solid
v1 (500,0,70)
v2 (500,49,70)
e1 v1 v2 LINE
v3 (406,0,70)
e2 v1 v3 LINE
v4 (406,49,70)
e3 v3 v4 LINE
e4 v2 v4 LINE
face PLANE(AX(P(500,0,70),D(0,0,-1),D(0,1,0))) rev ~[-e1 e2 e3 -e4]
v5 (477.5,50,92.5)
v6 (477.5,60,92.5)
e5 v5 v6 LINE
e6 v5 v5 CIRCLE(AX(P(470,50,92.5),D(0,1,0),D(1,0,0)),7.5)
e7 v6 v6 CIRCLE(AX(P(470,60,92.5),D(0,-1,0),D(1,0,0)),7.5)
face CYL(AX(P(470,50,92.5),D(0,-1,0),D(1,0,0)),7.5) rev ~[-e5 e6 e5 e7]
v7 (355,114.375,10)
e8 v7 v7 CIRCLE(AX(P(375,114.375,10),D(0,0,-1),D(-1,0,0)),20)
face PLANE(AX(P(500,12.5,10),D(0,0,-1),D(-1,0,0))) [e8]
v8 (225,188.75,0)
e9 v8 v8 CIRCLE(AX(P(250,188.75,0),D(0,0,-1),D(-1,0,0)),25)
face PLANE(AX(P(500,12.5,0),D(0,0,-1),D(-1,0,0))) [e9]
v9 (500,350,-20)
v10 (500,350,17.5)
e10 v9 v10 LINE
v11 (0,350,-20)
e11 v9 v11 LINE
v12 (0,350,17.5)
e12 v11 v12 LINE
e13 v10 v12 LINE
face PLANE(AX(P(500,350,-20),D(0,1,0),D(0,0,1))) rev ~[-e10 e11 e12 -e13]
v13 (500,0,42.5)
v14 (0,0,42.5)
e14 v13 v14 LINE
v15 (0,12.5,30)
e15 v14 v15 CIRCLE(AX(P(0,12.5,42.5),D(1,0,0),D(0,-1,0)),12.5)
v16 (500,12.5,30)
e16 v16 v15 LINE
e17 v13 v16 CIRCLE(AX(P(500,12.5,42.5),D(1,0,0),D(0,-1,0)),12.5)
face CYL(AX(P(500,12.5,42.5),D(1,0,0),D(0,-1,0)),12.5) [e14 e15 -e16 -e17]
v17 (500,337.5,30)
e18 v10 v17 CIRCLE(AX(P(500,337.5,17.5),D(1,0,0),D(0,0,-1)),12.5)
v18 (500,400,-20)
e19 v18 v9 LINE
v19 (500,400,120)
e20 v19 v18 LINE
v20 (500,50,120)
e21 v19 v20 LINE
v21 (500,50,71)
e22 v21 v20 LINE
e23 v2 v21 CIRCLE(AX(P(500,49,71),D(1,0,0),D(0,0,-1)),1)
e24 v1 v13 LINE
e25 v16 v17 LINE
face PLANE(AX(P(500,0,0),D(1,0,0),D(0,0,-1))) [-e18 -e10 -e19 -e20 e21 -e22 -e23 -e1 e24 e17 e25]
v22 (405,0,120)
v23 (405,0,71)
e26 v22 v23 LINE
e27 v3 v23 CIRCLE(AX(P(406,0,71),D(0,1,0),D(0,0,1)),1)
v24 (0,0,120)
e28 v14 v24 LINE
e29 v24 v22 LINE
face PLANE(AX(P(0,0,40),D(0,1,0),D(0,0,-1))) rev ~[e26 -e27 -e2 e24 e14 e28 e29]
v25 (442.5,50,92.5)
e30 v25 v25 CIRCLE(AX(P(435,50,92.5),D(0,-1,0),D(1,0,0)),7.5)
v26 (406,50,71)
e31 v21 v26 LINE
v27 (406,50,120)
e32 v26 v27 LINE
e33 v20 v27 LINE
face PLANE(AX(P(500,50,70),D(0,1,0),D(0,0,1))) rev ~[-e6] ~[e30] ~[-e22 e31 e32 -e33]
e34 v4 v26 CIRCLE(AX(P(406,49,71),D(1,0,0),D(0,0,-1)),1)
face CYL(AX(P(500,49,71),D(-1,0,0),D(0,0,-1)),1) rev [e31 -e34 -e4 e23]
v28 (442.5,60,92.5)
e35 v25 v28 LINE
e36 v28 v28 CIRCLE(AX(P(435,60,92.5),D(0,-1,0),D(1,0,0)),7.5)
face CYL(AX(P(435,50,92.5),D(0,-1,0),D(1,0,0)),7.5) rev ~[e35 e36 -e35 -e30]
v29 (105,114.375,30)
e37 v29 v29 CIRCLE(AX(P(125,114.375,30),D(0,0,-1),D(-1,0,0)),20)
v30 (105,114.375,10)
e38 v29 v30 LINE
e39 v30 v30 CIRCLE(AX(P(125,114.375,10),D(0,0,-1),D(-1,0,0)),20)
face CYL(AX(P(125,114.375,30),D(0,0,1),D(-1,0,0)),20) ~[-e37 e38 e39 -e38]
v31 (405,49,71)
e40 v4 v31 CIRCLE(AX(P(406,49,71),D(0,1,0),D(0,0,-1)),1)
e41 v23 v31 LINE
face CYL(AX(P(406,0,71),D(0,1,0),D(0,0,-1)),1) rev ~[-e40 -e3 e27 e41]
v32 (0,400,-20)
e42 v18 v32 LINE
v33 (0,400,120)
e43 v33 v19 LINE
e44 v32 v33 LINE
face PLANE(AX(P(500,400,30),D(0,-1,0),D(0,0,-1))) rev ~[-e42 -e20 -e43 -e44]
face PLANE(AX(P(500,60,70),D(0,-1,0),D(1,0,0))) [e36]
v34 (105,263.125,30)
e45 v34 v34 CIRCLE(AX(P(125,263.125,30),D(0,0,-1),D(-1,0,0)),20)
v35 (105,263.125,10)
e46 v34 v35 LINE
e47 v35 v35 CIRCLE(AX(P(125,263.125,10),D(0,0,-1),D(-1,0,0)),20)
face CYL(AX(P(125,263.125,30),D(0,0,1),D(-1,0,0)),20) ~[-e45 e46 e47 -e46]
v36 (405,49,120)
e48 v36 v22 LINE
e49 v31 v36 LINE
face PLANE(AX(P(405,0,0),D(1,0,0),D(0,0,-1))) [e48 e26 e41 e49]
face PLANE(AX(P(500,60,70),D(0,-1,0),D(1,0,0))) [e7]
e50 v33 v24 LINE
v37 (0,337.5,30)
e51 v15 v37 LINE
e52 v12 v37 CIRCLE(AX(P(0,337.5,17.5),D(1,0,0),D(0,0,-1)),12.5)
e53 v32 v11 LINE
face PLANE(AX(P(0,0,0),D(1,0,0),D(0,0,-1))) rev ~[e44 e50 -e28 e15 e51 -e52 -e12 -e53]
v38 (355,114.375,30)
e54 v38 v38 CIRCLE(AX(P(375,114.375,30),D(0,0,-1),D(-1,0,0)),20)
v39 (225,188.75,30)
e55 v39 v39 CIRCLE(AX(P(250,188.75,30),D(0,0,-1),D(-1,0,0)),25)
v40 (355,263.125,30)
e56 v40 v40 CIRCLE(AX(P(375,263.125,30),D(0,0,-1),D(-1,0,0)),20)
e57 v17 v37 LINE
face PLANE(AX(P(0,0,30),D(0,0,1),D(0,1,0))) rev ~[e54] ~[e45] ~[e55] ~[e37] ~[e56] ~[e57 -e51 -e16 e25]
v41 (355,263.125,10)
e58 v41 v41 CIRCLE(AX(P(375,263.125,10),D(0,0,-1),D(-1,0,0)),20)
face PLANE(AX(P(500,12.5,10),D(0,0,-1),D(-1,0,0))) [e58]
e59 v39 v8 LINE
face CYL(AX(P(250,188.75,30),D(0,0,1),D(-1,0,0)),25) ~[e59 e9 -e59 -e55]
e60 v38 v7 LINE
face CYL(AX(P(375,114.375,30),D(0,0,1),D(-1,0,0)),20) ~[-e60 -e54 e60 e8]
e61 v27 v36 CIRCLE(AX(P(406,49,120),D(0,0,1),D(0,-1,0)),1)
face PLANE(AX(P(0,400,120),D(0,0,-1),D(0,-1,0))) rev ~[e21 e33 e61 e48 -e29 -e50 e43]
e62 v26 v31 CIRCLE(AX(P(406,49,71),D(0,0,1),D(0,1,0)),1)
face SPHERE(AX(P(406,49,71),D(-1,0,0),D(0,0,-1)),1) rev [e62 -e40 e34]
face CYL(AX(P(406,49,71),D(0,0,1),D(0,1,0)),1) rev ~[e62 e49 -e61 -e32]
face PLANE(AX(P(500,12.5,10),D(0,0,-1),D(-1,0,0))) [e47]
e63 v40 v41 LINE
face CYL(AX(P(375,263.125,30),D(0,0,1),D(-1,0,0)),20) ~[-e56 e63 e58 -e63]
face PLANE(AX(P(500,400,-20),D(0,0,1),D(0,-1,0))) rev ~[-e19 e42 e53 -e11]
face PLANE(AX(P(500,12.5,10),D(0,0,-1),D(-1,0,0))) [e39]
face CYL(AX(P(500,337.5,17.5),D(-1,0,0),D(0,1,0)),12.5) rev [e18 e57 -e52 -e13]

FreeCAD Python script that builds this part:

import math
import FreeCAD as App
import Part
import Sketcher
from FreeCAD import Vector
Q = App.Units.Quantity


def edges_at(feature, points):
    """Names of the edges that pass closest to the given points."""
    edges = feature.Shape.Edges
    near = lambda p: min(range(len(edges)), key=lambda i: edges[i].distToShape(Part.Vertex(*p))[0])
    return sorted({f"Edge{near(p) + 1}" for p in points})


def add_polygon(sketch, points):
    """Adds a closed chain of lines whose ends are joined by coincident constraints."""
    first, n = sketch.GeometryCount, len(points)
    for a, b in zip(points, points[1:] + points[:1]):
        sketch.addGeometry(Part.LineSegment(App.Vector(*a, 0), App.Vector(*b, 0)), False)
    for i in range(n):
        sketch.addConstraint(Sketcher.Constraint("Coincident", first + i, 2, first + (i + 1) % n, 1))

doc = App.newDocument("Part")
body = doc.addObject("PartDesign::Body", "Body")

# Sketch on YZ plane
sketch1 = body.newObject("Sketcher::SketchObject", "Sketch")
sketch1.AttachmentSupport = (doc.getObject("YZ_Plane"), [""])
sketch1.MapMode = "FlatFace"
add_polygon(sketch1, [(400, 30), (400, 120), (0, 120), (0, 30)])  # lines 0-3
sketch1.addConstraint([
    Sketcher.Constraint("Vertical", 0),
    Sketcher.Constraint("Horizontal", 1),
    Sketcher.Constraint("Vertical", 2),
    Sketcher.Constraint("Horizontal", 3),
    Sketcher.Constraint("PointOnObject", 1, 2, -2),
    Sketcher.Constraint("DistanceX", 1, 2, 1, 1, Q("400 mm")),
    Sketcher.Constraint("DistanceY", 0, 1, 0, 2, Q("90 mm")),
    Sketcher.Constraint("DistanceY", -1, 1, 0, 2, Q("120 mm")),
])
pad1 = body.newObject("PartDesign::Pad", "Pad")
pad1.Profile = sketch1
pad1.Length = 500

# Sketch on YZ plane
sketch2 = body.newObject("Sketcher::SketchObject", "Sketch001")
sketch2.AttachmentSupport = (doc.getObject("YZ_Plane"), [""])
sketch2.MapMode = "FlatFace"
sketch2.AttachmentOffset = App.Placement(Vector(0, 0, 500), App.Rotation())
add_polygon(sketch2, [(0, 120), (0, 70), (50, 70), (50, 120)])  # lines 0-3
sketch2.addConstraint([
    Sketcher.Constraint("Vertical", 0),
    Sketcher.Constraint("Horizontal", 1),
    Sketcher.Constraint("Vertical", 2),
    Sketcher.Constraint("Horizontal", 3),
    Sketcher.Constraint("PointOnObject", 0, 2, -2),
    Sketcher.Constraint("Equal", 3, 0),
    Sketcher.Constraint("DistanceX", 1, 1, 1, 2, Q("50 mm")),
    Sketcher.Constraint("DistanceY", -1, 1, 0, 2, Q("70 mm")),
])
pocket1 = body.newObject("PartDesign::Pocket", "Pocket")
pocket1.Profile = sketch2
pocket1.Length = 95

# Sketch on YZ plane
sketch3 = body.newObject("Sketcher::SketchObject", "Sketch002")
sketch3.AttachmentSupport = (doc.getObject("YZ_Plane"), [""])
sketch3.MapMode = "FlatFace"
sketch3.AttachmentOffset = App.Placement(Vector(0, 0, 500), App.Rotation())
sketch3.addGeometry([
    Part.ArcOfCircle(Part.Circle(Vector(12, 42, 0), Vector(0, 0, 1), 12), math.radians(180), math.radians(270)),
    Part.LineSegment(Vector(0, 42, 0), Vector(0, 30, 0)),
    Part.LineSegment(Vector(0, 30, 0), Vector(12, 30, 0)),
], False)
sketch3.addConstraint([
    Sketcher.Constraint("Tangent", 0, 1, 1, 1),
    Sketcher.Constraint("Coincident", 1, 2, 2, 1),
    Sketcher.Constraint("Tangent", 2, 2, 0, 2),
    Sketcher.Constraint("Vertical", 1),
    Sketcher.Constraint("Horizontal", 2),
    Sketcher.Constraint("PointOnObject", 0, 1, -2),
    Sketcher.Constraint("Radius", 0, Q("12.5 mm")),
    Sketcher.Constraint("DistanceY", -1, 1, 1, 2, Q("30 mm")),
])
pocket2 = body.newObject("PartDesign::Pocket", "Pocket001")
pocket2.Profile = sketch3
pocket2.Length = 500

# Sketch on YZ plane
sketch4 = body.newObject("Sketcher::SketchObject", "Sketch003")
sketch4.AttachmentSupport = (doc.getObject("YZ_Plane"), [""])
sketch4.MapMode = "FlatFace"
sketch4.AttachmentOffset = App.Placement(Vector(0, 0, 500), App.Rotation())
add_polygon(sketch4, [(400, -20), (400, 30), (350, 30), (350, -20)])  # lines 0-3
sketch4.addConstraint([
    Sketcher.Constraint("Vertical", 0),
    Sketcher.Constraint("Horizontal", 1),
    Sketcher.Constraint("Vertical", 2),
    Sketcher.Constraint("Horizontal", 3),
    Sketcher.Constraint("Equal", 3, 0),
    Sketcher.Constraint("DistanceX", 1, 2, 1, 1, Q("50 mm")),
    Sketcher.Constraint("DistanceX", -1, 1, 0, 2, Q("400 mm")),
    Sketcher.Constraint("DistanceY", -1, 1, 0, 2, Q("30 mm")),
])
pad2 = body.newObject("PartDesign::Pad", "Pad001")
pad2.Profile = sketch4
pad2.Length = 500
pad2.Reversed = True

# Sketch on XZ plane
sketch5 = body.newObject("Sketcher::SketchObject", "Sketch004")
sketch5.AttachmentSupport = (doc.getObject("XZ_Plane"), [""])
sketch5.MapMode = "FlatFace"
sketch5.AttachmentOffset = App.Placement(Vector(0, 0, -50), App.Rotation())
sketch5.addGeometry([
    Part.Circle(Vector(435, 92, 0), Vector(0, 0, 1), 8),
    Part.Circle(Vector(470, 92, 0), Vector(0, 0, 1), 8),
], False)
sketch5.addConstraint([
    Sketcher.Constraint("Equal", 0, 1),
    Sketcher.Constraint("Horizontal", 0, 3, 1, 3),
    Sketcher.Constraint("Diameter", 0, Q("15 mm")),
    Sketcher.Constraint("DistanceX", 0, 3, 1, 3, Q("35 mm")),
    Sketcher.Constraint("DistanceX", -1, 1, 0, 3, Q("435 mm")),
    Sketcher.Constraint("DistanceY", -1, 1, 0, 3, Q("92.5 mm")),
])
pocket3 = body.newObject("PartDesign::Pocket", "Pocket002")
pocket3.Profile = sketch5
pocket3.Length = 10
doc.recompute()

fillet = body.newObject("PartDesign::Fillet", "Fillet")
fillet.Base = (pocket3, edges_at(pocket3, [(250, 350, 30)]))
fillet.Radius = 12.5

# Sketch on XY plane
sketch6 = body.newObject("Sketcher::SketchObject", "Sketch005")
sketch6.AttachmentSupport = (doc.getObject("XY_Plane"), [""])
sketch6.MapMode = "FlatFace"
sketch6.AttachmentOffset = App.Placement(Vector(0, 0, 30), App.Rotation())
sketch6.addGeometry(Part.Circle(Vector(250, 189, 0), Vector(0, 0, 1), 25), False)
sketch6.addConstraint([
    Sketcher.Constraint("Diameter", 0, Q("50 mm")),
    Sketcher.Constraint("DistanceX", -1, 1, 0, 3, Q("250 mm")),
    Sketcher.Constraint("DistanceY", -1, 1, 0, 3, Q("188.75 mm")),
])
pad3 = body.newObject("PartDesign::Pad", "Pad002")
pad3.Profile = sketch6
pad3.Length = 30
pad3.Reversed = True

# Sketch on XY plane
sketch7 = body.newObject("Sketcher::SketchObject", "Sketch006")
sketch7.AttachmentSupport = (doc.getObject("XY_Plane"), [""])
sketch7.MapMode = "FlatFace"
sketch7.AttachmentOffset = App.Placement(Vector(0, 0, 30), App.Rotation())
sketch7.addGeometry([
    Part.Circle(Vector(375, 263, 0), Vector(0, 0, 1), 20),
    Part.Circle(Vector(125, 263, 0), Vector(0, 0, 1), 20),
    Part.Circle(Vector(125, 114, 0), Vector(0, 0, 1), 20),
    Part.Circle(Vector(375, 114, 0), Vector(0, 0, 1), 20),
], False)
sketch7.addConstraint([
    Sketcher.Constraint("Equal", 0, 1),
    Sketcher.Constraint("Equal", 1, 2),
    Sketcher.Constraint("Equal", 2, 3),
    Sketcher.Constraint("Horizontal", 0, 3, 1, 3),
    Sketcher.Constraint("Horizontal", 2, 3, 3, 3),
    Sketcher.Constraint("Vertical", 1, 3, 2, 3),
    Sketcher.Constraint("Vertical", 0, 3, 3, 3),
    Sketcher.Constraint("Diameter", 0, Q("40 mm")),
    Sketcher.Constraint("DistanceX", -1, 1, 0, 3, Q("375 mm")),
    Sketcher.Constraint("DistanceX", -1, 1, 1, 3, Q("125 mm")),
    Sketcher.Constraint("DistanceY", 2, 3, 1, 3, Q("148.75 mm")),
    Sketcher.Constraint("DistanceY", -1, 1, 0, 3, Q("263.125 mm")),
])
pad4 = body.newObject("PartDesign::Pad", "Pad003")
pad4.Profile = sketch7
pad4.Length = 20
pad4.Reversed = True
doc.recompute()

fillet2 = body.newObject("PartDesign::Fillet", "Fillet001")
fillet2.Base = (pad4, edges_at(pad4, [(452.5, 50, 70)]))
fillet2.Radius = 1
doc.recompute()

fillet3 = body.newObject("PartDesign::Fillet", "Fillet002")
fillet3.Base = (fillet2, edges_at(fillet2, [(405, 49.707, 70.293), (405, 24.5, 70), (405, 50, 95.5)]))
fillet3.Radius = 1

doc.recompute()
